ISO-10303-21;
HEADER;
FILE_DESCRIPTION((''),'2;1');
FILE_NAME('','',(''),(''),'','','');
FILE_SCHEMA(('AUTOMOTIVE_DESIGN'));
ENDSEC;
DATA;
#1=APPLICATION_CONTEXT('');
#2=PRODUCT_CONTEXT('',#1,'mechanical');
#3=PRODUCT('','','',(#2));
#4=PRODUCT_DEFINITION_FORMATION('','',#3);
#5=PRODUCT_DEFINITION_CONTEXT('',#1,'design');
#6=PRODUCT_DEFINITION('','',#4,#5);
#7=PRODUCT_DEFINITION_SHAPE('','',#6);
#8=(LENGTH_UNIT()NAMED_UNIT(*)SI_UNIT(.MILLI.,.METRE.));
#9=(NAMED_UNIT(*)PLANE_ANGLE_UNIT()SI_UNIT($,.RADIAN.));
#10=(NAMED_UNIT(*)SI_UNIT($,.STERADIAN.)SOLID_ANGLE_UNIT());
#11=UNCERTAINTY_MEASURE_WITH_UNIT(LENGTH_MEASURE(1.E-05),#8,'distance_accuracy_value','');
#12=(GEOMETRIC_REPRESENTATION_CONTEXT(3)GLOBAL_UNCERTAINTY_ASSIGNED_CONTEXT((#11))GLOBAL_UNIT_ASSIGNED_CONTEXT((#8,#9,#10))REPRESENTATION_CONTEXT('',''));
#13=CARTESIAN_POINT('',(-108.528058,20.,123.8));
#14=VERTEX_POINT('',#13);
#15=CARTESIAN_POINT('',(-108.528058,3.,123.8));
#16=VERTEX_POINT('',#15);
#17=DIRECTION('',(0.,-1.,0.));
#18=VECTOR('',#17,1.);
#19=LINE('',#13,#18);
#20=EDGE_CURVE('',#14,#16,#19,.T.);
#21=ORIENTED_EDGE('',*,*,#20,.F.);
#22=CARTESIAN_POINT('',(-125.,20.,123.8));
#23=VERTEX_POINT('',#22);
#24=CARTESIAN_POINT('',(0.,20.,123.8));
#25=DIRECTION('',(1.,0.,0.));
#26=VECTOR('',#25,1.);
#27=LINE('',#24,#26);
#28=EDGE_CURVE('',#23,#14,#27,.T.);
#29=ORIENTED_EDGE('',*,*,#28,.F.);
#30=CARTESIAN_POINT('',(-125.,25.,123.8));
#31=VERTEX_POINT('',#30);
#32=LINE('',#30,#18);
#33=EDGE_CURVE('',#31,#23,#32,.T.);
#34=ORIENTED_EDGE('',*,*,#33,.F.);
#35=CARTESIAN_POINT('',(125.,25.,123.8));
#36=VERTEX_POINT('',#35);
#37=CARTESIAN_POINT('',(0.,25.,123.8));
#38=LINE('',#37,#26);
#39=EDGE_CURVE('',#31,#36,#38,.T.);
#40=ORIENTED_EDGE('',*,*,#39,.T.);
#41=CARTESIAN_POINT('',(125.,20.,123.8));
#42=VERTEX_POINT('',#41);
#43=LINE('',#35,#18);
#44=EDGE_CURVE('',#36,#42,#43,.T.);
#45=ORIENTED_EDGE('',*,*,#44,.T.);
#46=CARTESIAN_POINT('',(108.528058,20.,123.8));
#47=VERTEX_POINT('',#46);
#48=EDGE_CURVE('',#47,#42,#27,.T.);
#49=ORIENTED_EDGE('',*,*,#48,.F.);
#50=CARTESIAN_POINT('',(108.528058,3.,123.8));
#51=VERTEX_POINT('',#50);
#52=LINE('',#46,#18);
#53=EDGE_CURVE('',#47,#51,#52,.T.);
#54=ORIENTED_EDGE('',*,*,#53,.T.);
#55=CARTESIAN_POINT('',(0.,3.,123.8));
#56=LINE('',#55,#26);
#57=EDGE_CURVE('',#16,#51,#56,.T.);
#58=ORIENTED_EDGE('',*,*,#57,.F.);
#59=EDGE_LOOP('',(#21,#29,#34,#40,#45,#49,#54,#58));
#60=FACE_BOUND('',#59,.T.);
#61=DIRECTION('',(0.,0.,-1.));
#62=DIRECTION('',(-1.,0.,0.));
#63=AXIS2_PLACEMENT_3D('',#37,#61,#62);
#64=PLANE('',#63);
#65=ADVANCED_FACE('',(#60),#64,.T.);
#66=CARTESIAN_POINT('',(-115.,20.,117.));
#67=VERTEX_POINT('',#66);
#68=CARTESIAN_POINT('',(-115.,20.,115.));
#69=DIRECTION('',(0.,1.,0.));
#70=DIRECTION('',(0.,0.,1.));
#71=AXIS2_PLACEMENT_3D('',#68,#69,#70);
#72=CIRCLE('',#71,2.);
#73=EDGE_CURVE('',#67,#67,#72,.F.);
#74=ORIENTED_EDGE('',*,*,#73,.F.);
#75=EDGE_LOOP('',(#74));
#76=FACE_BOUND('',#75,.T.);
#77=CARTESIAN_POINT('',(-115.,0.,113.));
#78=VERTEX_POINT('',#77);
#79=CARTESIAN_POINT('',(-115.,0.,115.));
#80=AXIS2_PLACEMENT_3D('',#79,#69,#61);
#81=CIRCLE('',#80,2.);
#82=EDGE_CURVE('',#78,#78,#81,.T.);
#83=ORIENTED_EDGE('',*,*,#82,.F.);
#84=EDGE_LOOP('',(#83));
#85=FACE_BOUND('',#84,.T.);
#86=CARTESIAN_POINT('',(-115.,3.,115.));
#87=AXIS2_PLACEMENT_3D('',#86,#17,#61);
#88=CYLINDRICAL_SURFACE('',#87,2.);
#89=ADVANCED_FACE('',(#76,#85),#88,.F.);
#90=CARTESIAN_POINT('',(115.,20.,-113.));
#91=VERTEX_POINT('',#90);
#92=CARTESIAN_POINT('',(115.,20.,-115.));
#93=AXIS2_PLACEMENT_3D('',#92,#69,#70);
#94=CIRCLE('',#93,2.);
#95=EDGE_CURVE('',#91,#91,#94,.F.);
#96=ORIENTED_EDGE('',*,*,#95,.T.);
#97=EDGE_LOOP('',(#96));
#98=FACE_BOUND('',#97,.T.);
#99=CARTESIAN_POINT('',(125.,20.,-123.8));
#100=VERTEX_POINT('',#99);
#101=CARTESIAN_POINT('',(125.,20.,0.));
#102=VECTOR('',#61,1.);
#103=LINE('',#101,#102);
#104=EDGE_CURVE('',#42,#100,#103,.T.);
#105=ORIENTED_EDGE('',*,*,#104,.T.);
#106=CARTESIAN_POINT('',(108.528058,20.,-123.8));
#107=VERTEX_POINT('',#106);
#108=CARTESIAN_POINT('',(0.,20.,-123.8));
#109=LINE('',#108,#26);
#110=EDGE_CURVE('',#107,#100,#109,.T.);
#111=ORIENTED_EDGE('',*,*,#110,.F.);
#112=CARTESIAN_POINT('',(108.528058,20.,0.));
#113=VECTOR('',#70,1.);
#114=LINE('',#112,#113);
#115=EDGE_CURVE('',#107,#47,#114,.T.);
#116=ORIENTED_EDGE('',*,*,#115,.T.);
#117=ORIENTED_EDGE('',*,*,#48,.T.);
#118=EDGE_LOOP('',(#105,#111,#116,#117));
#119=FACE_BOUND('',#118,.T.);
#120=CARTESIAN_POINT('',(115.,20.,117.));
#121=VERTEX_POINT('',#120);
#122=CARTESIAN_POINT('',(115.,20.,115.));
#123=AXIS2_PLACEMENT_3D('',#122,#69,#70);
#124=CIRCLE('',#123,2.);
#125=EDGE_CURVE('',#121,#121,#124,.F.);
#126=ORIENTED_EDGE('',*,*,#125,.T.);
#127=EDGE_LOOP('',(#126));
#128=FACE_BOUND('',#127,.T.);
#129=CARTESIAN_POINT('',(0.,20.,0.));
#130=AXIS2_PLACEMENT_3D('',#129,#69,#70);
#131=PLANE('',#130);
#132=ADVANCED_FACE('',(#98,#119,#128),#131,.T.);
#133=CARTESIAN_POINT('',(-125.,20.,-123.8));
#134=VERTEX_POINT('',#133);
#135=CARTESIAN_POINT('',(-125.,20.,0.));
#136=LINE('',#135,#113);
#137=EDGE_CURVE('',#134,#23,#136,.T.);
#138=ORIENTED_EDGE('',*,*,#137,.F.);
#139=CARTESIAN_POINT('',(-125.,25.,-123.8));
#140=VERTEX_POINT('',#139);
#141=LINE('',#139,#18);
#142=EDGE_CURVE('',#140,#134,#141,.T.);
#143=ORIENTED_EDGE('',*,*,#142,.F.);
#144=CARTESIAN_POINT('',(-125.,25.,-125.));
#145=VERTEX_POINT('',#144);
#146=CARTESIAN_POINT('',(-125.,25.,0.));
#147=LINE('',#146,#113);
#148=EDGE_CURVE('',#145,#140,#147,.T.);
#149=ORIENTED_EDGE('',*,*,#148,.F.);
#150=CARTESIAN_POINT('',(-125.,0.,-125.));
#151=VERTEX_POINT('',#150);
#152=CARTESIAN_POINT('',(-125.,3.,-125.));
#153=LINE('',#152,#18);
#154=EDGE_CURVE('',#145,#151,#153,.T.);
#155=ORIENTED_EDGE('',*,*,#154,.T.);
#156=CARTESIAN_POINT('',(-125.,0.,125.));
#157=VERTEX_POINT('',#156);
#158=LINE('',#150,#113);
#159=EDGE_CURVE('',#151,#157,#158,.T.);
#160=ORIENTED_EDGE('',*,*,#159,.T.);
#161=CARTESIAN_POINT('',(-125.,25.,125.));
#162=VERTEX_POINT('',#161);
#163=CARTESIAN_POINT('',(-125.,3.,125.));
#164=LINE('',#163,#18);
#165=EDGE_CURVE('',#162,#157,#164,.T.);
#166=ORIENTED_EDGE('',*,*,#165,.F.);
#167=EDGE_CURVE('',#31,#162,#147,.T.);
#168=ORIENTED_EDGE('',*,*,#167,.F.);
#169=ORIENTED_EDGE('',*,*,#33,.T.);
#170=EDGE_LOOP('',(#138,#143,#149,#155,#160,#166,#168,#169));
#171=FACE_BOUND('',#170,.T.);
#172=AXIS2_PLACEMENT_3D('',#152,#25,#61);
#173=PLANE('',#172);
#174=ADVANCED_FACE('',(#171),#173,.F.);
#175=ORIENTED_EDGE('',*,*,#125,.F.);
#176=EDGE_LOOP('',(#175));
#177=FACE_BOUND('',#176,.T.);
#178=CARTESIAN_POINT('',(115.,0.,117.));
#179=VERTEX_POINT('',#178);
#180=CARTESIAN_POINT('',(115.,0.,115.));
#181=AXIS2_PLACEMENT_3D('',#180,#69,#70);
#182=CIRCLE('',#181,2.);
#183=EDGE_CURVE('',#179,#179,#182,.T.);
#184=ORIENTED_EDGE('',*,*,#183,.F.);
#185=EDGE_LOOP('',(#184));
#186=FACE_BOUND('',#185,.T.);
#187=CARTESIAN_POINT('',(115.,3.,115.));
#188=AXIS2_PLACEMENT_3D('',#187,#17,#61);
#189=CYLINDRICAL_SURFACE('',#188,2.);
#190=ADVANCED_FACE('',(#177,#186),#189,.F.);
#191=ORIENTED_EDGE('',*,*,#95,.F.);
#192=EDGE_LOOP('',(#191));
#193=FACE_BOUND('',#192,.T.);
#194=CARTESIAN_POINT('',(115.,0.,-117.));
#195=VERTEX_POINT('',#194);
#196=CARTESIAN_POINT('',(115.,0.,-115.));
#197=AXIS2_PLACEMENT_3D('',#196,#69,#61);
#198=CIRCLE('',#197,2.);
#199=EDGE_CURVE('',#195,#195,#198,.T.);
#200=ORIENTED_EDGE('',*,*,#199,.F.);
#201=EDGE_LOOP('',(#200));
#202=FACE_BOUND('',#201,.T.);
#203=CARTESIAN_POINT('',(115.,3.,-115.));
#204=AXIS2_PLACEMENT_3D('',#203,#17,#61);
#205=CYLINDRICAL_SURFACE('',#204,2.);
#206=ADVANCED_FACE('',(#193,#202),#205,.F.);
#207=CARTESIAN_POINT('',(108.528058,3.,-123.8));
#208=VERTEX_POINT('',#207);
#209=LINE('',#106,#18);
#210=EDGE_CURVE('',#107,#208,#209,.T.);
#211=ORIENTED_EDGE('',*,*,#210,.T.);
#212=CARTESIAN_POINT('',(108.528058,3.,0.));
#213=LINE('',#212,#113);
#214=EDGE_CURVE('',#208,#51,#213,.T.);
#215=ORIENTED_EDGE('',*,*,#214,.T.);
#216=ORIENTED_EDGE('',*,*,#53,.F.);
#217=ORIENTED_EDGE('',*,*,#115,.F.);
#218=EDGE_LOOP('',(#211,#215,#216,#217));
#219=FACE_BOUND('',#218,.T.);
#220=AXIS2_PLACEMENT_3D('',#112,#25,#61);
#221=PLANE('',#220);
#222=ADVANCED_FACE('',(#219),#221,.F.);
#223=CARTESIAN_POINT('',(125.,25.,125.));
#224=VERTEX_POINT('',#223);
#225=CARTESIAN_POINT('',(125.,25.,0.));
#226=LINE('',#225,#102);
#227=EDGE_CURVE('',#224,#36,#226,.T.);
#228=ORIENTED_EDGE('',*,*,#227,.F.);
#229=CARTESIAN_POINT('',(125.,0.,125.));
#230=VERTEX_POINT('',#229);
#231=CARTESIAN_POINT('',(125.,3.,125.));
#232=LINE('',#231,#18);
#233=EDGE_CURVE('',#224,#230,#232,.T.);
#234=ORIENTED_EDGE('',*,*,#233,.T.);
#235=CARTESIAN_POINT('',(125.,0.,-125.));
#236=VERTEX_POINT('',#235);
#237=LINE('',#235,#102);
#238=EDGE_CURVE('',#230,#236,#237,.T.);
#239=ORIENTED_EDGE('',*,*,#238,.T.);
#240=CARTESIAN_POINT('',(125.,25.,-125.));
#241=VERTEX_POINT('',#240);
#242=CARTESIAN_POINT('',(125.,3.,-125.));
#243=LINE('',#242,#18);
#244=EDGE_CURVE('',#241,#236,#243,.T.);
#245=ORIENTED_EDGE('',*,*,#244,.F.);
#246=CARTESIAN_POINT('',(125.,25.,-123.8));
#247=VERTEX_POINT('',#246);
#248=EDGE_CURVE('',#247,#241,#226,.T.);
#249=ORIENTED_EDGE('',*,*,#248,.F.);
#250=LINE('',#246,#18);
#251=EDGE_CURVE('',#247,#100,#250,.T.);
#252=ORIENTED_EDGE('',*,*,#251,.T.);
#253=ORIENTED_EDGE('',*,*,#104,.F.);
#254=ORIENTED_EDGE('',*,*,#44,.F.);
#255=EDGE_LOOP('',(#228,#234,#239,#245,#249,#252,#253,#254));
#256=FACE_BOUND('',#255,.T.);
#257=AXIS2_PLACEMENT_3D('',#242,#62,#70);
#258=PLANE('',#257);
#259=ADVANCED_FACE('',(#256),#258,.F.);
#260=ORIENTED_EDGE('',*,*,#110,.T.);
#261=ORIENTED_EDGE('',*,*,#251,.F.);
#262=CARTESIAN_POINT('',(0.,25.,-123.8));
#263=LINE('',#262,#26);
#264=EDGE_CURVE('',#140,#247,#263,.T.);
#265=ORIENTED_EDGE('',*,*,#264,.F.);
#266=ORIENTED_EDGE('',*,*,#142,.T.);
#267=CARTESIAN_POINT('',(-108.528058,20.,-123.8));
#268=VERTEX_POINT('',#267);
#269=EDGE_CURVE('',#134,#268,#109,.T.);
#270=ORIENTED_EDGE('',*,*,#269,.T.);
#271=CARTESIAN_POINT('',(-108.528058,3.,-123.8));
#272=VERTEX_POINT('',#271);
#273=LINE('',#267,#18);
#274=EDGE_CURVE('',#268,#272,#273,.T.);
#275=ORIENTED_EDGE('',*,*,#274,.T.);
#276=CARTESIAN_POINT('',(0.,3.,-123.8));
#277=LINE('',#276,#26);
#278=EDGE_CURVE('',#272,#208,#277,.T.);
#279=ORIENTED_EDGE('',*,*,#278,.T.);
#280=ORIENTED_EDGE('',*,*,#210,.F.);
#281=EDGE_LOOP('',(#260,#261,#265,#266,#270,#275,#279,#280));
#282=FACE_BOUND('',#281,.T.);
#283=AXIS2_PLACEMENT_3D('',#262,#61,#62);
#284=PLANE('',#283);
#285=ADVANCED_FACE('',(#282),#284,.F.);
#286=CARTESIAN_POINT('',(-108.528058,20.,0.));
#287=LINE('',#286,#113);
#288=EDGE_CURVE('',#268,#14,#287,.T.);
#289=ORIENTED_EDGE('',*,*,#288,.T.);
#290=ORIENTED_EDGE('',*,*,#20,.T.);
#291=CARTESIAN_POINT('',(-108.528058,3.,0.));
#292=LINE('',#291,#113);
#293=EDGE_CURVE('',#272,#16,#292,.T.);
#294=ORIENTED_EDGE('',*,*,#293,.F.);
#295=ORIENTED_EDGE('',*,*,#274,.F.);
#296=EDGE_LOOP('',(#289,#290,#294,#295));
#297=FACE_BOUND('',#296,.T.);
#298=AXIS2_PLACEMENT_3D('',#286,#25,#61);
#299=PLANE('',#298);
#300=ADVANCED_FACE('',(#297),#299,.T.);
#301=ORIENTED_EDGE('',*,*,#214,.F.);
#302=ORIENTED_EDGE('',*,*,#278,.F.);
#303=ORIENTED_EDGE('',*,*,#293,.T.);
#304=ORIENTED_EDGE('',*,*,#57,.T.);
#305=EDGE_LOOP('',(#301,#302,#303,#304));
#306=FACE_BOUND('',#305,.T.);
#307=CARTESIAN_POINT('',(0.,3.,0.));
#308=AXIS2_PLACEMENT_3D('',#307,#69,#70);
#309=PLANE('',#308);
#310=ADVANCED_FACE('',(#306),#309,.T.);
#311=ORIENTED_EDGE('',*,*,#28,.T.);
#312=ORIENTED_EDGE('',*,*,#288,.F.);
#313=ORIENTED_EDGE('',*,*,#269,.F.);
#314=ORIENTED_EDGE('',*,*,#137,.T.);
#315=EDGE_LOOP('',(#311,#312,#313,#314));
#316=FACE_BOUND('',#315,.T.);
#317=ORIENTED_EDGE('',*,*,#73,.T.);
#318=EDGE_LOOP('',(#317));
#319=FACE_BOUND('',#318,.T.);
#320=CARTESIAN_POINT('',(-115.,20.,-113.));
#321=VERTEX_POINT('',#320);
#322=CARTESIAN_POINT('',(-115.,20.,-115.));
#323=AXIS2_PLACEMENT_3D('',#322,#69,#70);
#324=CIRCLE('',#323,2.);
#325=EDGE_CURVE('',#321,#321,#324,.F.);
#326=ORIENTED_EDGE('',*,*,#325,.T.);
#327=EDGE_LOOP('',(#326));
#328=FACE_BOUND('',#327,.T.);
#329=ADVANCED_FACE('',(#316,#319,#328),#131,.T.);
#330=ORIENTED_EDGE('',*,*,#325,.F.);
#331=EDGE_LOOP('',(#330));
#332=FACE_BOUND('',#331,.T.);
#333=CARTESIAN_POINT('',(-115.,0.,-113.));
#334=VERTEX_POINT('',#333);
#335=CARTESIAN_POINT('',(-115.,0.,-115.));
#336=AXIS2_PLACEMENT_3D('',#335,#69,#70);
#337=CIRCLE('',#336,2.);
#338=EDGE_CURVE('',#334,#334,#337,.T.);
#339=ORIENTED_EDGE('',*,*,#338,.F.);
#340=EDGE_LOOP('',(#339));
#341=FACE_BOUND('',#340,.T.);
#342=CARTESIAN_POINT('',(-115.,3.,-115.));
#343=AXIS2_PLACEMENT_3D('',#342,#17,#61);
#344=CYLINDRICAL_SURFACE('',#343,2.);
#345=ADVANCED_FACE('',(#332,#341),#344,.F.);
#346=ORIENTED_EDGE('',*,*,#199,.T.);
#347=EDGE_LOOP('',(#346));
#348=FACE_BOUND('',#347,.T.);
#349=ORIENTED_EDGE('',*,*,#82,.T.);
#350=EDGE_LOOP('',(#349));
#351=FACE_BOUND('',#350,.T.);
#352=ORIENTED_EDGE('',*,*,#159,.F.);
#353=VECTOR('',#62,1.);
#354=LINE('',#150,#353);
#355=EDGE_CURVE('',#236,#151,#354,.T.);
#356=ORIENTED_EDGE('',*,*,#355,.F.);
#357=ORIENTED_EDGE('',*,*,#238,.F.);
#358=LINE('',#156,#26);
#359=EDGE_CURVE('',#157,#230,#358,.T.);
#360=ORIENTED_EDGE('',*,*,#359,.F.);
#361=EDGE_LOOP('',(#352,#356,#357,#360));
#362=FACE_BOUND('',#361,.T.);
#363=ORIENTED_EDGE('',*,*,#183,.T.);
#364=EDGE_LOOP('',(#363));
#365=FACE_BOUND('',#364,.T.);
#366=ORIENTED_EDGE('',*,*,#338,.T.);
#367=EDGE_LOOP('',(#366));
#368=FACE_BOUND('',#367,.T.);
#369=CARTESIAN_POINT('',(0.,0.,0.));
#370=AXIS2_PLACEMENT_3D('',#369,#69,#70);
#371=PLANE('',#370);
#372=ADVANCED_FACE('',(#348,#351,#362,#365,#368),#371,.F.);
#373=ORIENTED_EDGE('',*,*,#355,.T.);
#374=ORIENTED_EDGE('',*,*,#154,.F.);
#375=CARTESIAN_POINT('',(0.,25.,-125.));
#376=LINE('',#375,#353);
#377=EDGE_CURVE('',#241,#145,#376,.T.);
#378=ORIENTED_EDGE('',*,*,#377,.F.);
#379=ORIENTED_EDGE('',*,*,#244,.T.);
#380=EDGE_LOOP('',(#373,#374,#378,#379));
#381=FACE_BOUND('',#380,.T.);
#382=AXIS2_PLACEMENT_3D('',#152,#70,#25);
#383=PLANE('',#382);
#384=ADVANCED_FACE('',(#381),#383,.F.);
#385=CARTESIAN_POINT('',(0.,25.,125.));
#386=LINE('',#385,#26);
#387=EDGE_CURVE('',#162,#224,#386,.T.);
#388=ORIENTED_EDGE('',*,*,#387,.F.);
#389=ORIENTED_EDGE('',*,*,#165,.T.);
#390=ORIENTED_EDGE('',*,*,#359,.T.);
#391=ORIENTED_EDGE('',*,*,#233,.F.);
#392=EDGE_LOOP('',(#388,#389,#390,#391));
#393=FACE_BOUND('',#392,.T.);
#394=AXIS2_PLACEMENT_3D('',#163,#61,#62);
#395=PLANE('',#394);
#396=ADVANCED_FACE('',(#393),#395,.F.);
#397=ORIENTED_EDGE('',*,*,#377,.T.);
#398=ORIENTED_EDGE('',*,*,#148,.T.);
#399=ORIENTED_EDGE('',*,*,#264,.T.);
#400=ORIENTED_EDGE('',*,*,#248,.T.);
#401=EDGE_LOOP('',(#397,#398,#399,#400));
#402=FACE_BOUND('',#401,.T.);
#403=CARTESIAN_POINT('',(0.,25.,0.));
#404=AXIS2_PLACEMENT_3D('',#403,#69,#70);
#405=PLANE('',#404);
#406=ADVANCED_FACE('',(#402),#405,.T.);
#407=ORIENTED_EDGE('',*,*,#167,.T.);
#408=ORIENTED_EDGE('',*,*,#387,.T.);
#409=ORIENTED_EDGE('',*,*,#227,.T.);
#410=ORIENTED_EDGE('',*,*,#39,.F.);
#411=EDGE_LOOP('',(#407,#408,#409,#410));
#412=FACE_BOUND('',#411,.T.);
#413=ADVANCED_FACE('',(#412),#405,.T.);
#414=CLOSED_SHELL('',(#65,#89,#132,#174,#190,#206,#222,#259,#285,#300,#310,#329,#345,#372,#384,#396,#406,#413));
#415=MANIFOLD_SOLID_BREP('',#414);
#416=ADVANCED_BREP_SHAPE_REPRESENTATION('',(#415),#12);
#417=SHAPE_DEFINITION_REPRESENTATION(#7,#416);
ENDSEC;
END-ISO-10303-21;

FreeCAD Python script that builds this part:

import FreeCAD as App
import Part
import Sketcher
from FreeCAD import Vector
Q = App.Units.Quantity


def add_polygon(sketch, points):
    """Adds a closed chain of lines whose ends are joined by coincident constraints."""
    first, n = sketch.GeometryCount, len(points)
    for a, b in zip(points, points[1:] + points[:1]):
        sketch.addGeometry(Part.LineSegment(App.Vector(*a, 0), App.Vector(*b, 0)), False)
    for i in range(n):
        sketch.addConstraint(Sketcher.Constraint("Coincident", first + i, 2, first + (i + 1) % n, 1))

doc = App.newDocument("Part")
body = doc.addObject("PartDesign::Body", "Body")

sketch1 = doc.addObject("Sketcher::SketchObject", "Sketch")
body.addObject(sketch1)
sketch1.AttachmentSupport = (doc.XZ_Plane, [""])
sketch1.MapMode = "FlatFace"
add_polygon(sketch1, [(-125, -125), (-125, 125), (125, 125), (125, -125)])
sketch1.addGeometry(Part.Circle(Vector(-115, 115, 0), Vector(0, 0, 1), 2), False)
sketch1.addGeometry(Part.Circle(Vector(115, 115, 0), Vector(0, 0, 1), 2), False)
sketch1.addGeometry(Part.Circle(Vector(-115, -115, 0), Vector(0, 0, 1), 2), False)
sketch1.addGeometry(Part.Circle(Vector(115, -115, 0), Vector(0, 0, 1), 2), False)
sketch1.addConstraint([
    Sketcher.Constraint("Vertical", 0),
    Sketcher.Constraint("Horizontal", 1),
    Sketcher.Constraint("Vertical", 2),
    Sketcher.Constraint("Horizontal", 3),
    Sketcher.Constraint("Equal", 4, 5),
    Sketcher.Constraint("Equal", 5, 6),
    Sketcher.Constraint("Equal", 6, 7),
    Sketcher.Constraint("Symmetric", 5, 3, 6, 3, -1, 1),
    Sketcher.Constraint("Symmetric", 4, 3, 7, 3, -1, 1),
    Sketcher.Constraint("Symmetric", 0, 2, 2, 2, -1, 1),
    Sketcher.Constraint("Symmetric", 4, 3, 5, 3, -2),
    Sketcher.Constraint("Equal", 3, 0),
    Sketcher.Constraint("Diameter", 4, Q("4 mm")),
    Sketcher.Constraint("DistanceX", 1, 1, 1, 2, Q("250 mm")),
    Sketcher.Constraint("DistanceX", 4, 3, -1, 1, Q("115 mm")),
    Sketcher.Constraint("DistanceY", -1, 1, 4, 3, Q("115 mm")),
])
pad1 = doc.addObject("PartDesign::Pad", "Pad")
body.addObject(pad1)
pad1.Profile = sketch1
pad1.Length = 3
pad1.Reversed = True

sketch2 = doc.addObject("Sketcher::SketchObject", "Sketch001")
body.addObject(sketch2)
sketch2.AttachmentSupport = (doc.XZ_Plane, [""])
sketch2.MapMode = "FlatFace"
sketch2.AttachmentOffset = App.Placement(Vector(0, 0, -3), App.Rotation())
add_polygon(sketch2, [(-125, -123.8), (-125, 123.8), (-108.5, 123.8), (-108.5, -123.8)])
sketch2.addGeometry(Part.Circle(Vector(-115, 115, 0), Vector(0, 0, 1), 2), False)
sketch2.addGeometry(Part.Circle(Vector(-115, -115, 0), Vector(0, 0, 1), 2), False)
add_polygon(sketch2, [(108.5, -123.8), (108.5, 123.8), (125, 123.8), (125, -123.8)])
sketch2.addGeometry(Part.Circle(Vector(115, 115, 0), Vector(0, 0, 1), 2), False)
sketch2.addGeometry(Part.Circle(Vector(115, -115, 0), Vector(0, 0, 1), 2), False)
sketch2.addConstraint([
    Sketcher.Constraint("Vertical", 0),
    Sketcher.Constraint("Horizontal", 1),
    Sketcher.Constraint("Vertical", 2),
    Sketcher.Constraint("Horizontal", 3),
    Sketcher.Constraint("Vertical", 6),
    Sketcher.Constraint("Horizontal", 7),
    Sketcher.Constraint("Vertical", 8),
    Sketcher.Constraint("Horizontal", 9),
    Sketcher.Constraint("Equal", 4, 5),
    Sketcher.Constraint("Equal", 5, 10),
    Sketcher.Constraint("Equal", 10, 11),
    Sketcher.Constraint("Symmetric", 5, 3, 10, 3, -1, 1),
    Sketcher.Constraint("Symmetric", 4, 3, 11, 3, -1, 1),
    Sketcher.Constraint("Symmetric", 2, 2, 6, 2, -1, 1),
    Sketcher.Constraint("Symmetric", 0, 2, 8, 2, -1, 1),
    Sketcher.Constraint("Symmetric", 4, 3, 10, 3, -2),
    Sketcher.Constraint("Horizontal", 1, 2, 6, 2),
    Sketcher.Constraint("Diameter", 4, Q("4 mm")),
    Sketcher.Constraint("DistanceY", 0, 1, 0, 2, Q("247.6 mm")),
    Sketcher.Constraint("DistanceX", 4, 3, -1, 1, Q("115 mm")),
    Sketcher.Constraint("DistanceY", -1, 1, 4, 3, Q("115 mm")),
    Sketcher.Constraint("DistanceX", 0, 2, -1, 1, Q("125 mm")),
    Sketcher.Constraint("DistanceX", 1, 1, 1, 2, Q("16.471942 mm")),
])
pad2 = doc.addObject("PartDesign::Pad", "Pad001")
body.addObject(pad2)
pad2.Profile = sketch2
pad2.Length = 17
pad2.Reversed = True

sketch3 = doc.addObject("Sketcher::SketchObject", "Sketch002")
body.addObject(sketch3)
sketch3.AttachmentSupport = (doc.XZ_Plane, [""])
sketch3.MapMode = "FlatFace"
sketch3.AttachmentOffset = App.Placement(Vector(0, 0, -3), App.Rotation())
add_polygon(sketch3, [(-125, -123.8), (125, -123.8), (125, -125), (-125, -125)])
add_polygon(sketch3, [(-125, 123.8), (-125, 125), (125, 125), (125, 123.8)])
sketch3.addConstraint([
    Sketcher.Constraint("Horizontal", 0),
    Sketcher.Constraint("Vertical", 1),
    Sketcher.Constraint("Horizontal", 2),
    Sketcher.Constraint("Vertical", 3),
    Sketcher.Constraint("Vertical", 4),
    Sketcher.Constraint("Horizontal", 5),
    Sketcher.Constraint("Vertical", 6),
    Sketcher.Constraint("Horizontal", 7),
    Sketcher.Constraint("Symmetric", 1, 2, 4, 2, -1, 1),
    Sketcher.Constraint("Symmetric", 3, 2, 6, 2, -1, 1),
    Sketcher.Constraint("Vertical", 3, 2, 4, 2),
    Sketcher.Constraint("DistanceX", 0, 1, 0, 2, Q("250 mm")),
    Sketcher.Constraint("DistanceY", 1, 2, 1, 1, Q("1.2 mm")),
    Sketcher.Constraint("DistanceY", 1, 2, -1, 1, Q("125 mm")),
])
pad3 = doc.addObject("PartDesign::Pad", "Pad002")
body.addObject(pad3)
pad3.Profile = sketch3
pad3.Length = 22
pad3.Reversed = True

doc.recompute()
